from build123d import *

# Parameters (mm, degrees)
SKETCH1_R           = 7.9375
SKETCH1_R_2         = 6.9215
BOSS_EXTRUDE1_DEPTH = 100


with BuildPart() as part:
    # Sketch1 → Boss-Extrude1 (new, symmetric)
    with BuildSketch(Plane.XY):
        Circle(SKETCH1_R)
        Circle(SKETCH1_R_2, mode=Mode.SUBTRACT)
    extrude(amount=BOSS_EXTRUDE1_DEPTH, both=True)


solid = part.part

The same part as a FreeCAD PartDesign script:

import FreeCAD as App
import Part
import Sketcher
Q = App.Units.Quantity

doc = App.newDocument("Part")
params = doc.addObject("Spreadsheet::Sheet", "Params")
for row, (alias, value) in enumerate([
    ("sketch1_diameter", "0.625 in"),
    ("sketch1_diameter2", "0.545 in"),
    ("pad1_length", "200 mm"),
], start=1):
    params.set(f"A{row}", alias)
    params.set(f"B{row}", "=" + value)
    params.setAlias(f"B{row}", alias)

body = doc.addObject("PartDesign::Body", "Body")

# Sketch on XY plane
sketch1 = body.newObject("Sketcher::SketchObject", "Sketch")
sketch1.AttachmentSupport = (doc.getObject("XY_Plane"), [""])
sketch1.MapMode = "FlatFace"
sketch1.addGeometry([
    Part.Circle(App.Vector(0, 0, 0), App.Vector(0, 0, 1), 8),
    Part.Circle(App.Vector(0, 0, 0), App.Vector(0, 0, 1), 7),
], False)
sketch1.addConstraint([
    Sketcher.Constraint("Coincident", 0, 3, -1, 1),
    Sketcher.Constraint("Coincident", 1, 3, -1, 1),
    Sketcher.Constraint("Diameter", 0, Q("0.625 in")),
    Sketcher.Constraint("Diameter", 1, Q("0.545 in")),
])
sketch1.setExpression("Constraints[2]", "Params.sketch1_diameter")
sketch1.setExpression("Constraints[3]", "Params.sketch1_diameter2")
pad1 = body.newObject("PartDesign::Pad", "Pad")
pad1.Profile = sketch1
pad1.setExpression("Length", "Params.pad1_length")
pad1.Midplane = True

doc.recompute()
